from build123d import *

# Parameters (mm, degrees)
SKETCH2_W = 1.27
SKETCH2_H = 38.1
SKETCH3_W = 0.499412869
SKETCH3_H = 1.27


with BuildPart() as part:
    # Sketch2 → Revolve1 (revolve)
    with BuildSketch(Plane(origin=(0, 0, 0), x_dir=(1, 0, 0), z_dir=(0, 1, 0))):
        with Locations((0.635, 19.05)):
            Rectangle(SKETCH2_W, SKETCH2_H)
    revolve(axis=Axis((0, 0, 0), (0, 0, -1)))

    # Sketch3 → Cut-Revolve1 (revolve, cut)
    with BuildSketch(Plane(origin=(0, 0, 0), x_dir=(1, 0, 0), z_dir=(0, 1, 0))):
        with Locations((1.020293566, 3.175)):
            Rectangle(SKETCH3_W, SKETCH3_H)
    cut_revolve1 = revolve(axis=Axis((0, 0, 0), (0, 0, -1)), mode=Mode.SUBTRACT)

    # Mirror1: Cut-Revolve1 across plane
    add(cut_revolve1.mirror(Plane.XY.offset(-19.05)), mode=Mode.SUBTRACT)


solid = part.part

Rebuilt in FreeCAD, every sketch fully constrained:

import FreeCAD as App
import Part
import Sketcher
Q = App.Units.Quantity

doc = App.newDocument("Part")
body = doc.addObject("PartDesign::Body", "Body")

# Sketch on XZ plane
sketch1 = body.newObject("Sketcher::SketchObject", "Sketch")
sketch1.AttachmentSupport = (doc.getObject("XZ_Plane"), [""])
sketch1.MapMode = "FlatFace"
sketch1.addGeometry([
    Part.LineSegment(App.Vector(0, -38.1, 0), App.Vector(0, 0, 0)),
    Part.LineSegment(App.Vector(0, 0, 0), App.Vector(1.27, 0, 0)),
    Part.LineSegment(App.Vector(1.27, 0, 0), App.Vector(1.27, -38.1, 0)),
    Part.LineSegment(App.Vector(1.27, -38.1, 0), App.Vector(0, -38.1, 0)),
], False)
sketch1.addConstraint([
    Sketcher.Constraint("Coincident", 0, 2, 1, 1),
    Sketcher.Constraint("Coincident", 1, 2, 2, 1),
    Sketcher.Constraint("Coincident", 2, 2, 3, 1),
    Sketcher.Constraint("Coincident", 3, 2, 0, 1),
    Sketcher.Constraint("Vertical", 0),
    Sketcher.Constraint("Horizontal", 1),
    Sketcher.Constraint("Vertical", 2),
    Sketcher.Constraint("Horizontal", 3),
    Sketcher.Constraint("Coincident", 0, 2, -1, 1),
    Sketcher.Constraint("DistanceY", 0, 1, 0, 2, Q("1.5 in")),
    Sketcher.Constraint("DistanceX", 1, 1, 1, 2, Q("0.05 in")),
])
revolution = body.newObject("PartDesign::Revolution", "Revolution")
revolution.Profile = sketch1
revolution.ReferenceAxis = (sketch1, ["V_Axis"])
revolution.Angle = 360

# Sketch on XZ plane
sketch2 = body.newObject("Sketcher::SketchObject", "Sketch001")
sketch2.AttachmentSupport = (doc.getObject("XZ_Plane"), [""])
sketch2.MapMode = "FlatFace"
sketch2.addGeometry([
    Part.LineSegment(App.Vector(0.770587, -3.81, 0), App.Vector(0.770587, -2.54, 0)),
    Part.LineSegment(App.Vector(0.770587, -2.54, 0), App.Vector(1.27, -2.54, 0)),
    Part.LineSegment(App.Vector(1.27, -2.54, 0), App.Vector(1.27, -3.81, 0)),
    Part.LineSegment(App.Vector(1.27, -3.81, 0), App.Vector(0.770587, -3.81, 0)),
], False)
sketch2.addConstraint([
    Sketcher.Constraint("Coincident", 0, 2, 1, 1),
    Sketcher.Constraint("Coincident", 1, 2, 2, 1),
    Sketcher.Constraint("Coincident", 2, 2, 3, 1),
    Sketcher.Constraint("Coincident", 3, 2, 0, 1),
    Sketcher.Constraint("Vertical", 0),
    Sketcher.Constraint("Horizontal", 1),
    Sketcher.Constraint("Vertical", 2),
    Sketcher.Constraint("Horizontal", 3),
    Sketcher.Constraint("DistanceY", 0, 1, 0, 2, Q("0.05 in")),
    Sketcher.Constraint("DistanceY", 0, 2, -1, 1, Q("0.1 in")),
    Sketcher.Constraint("DistanceX", -1, 1, 1, 2, Q("0.05 in")),
    Sketcher.Constraint("DistanceX", 1, 1, 1, 2, 0.499413),
])
groove = body.newObject("PartDesign::Groove", "Groove")
groove.Profile = sketch2
groove.ReferenceAxis = (sketch2, ["V_Axis"])
groove.Angle = 360
doc.recompute()

datumplane = body.newObject("PartDesign::Plane", "DatumPlane")
datumplane.AttachmentSupport = (doc.getObject("XY_Plane"), [""])
datumplane.MapMode = "FlatFace"
datumplane.AttachmentOffset = App.Placement(App.Vector(0, 0, -0.75 * 25.4), App.Rotation())
mirrored = body.newObject("PartDesign::Mirrored", "Mirrored")
mirrored.Originals = [groove]
mirrored.MirrorPlane = (datumplane, [""])
body.Tip = mirrored

doc.recompute()
